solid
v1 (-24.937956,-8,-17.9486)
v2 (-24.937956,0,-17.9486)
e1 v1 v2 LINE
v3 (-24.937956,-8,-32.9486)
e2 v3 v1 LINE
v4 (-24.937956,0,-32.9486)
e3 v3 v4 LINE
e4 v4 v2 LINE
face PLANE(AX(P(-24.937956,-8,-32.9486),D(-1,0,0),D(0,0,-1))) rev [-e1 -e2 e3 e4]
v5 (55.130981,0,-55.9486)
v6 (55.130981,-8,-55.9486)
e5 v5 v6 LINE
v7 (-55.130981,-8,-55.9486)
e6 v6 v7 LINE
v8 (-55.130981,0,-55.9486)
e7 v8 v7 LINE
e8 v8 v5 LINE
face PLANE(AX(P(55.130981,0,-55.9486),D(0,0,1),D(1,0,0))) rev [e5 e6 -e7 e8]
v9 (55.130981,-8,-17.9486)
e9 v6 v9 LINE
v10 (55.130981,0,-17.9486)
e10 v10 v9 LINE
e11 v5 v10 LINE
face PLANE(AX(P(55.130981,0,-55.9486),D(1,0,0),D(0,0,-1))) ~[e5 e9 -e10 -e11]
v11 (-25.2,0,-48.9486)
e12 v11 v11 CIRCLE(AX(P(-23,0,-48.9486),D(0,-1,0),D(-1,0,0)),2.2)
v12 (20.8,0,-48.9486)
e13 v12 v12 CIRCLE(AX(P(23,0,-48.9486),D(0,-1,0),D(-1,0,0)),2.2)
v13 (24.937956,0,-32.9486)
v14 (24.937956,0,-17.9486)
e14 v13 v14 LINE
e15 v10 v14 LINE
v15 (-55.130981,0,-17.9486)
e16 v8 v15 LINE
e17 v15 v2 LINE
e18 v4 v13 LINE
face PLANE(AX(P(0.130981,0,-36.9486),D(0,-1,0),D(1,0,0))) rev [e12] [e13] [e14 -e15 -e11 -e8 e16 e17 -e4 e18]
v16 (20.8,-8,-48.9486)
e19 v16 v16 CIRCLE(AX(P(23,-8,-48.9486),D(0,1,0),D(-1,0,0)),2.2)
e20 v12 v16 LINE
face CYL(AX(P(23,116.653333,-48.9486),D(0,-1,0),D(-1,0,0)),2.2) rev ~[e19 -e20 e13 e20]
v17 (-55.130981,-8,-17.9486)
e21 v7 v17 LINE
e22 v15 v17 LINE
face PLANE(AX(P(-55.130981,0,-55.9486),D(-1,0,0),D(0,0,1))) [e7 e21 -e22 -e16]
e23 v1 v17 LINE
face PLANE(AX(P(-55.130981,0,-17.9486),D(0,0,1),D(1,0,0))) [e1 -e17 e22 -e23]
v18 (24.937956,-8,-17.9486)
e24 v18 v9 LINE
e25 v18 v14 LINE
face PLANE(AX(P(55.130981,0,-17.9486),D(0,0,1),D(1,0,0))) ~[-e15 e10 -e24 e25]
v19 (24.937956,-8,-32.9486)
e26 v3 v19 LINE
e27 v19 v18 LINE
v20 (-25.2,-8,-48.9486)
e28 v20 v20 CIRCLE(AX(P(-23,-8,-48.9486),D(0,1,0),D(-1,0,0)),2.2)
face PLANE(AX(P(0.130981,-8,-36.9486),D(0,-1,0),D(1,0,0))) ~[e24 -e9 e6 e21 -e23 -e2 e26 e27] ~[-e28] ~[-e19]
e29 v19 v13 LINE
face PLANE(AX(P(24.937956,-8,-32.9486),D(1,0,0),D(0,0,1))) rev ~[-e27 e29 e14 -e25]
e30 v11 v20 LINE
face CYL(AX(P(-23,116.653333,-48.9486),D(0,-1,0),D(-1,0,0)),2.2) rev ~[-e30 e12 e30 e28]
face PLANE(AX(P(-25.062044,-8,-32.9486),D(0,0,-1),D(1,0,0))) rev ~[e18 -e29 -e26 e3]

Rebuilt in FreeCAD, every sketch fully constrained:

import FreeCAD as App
import Part
import Sketcher
from FreeCAD import Vector
Q = App.Units.Quantity


def add_polygon(sketch, points):
    """Adds a closed chain of lines whose ends are joined by coincident constraints."""
    first, n = sketch.GeometryCount, len(points)
    for a, b in zip(points, points[1:] + points[:1]):
        sketch.addGeometry(Part.LineSegment(App.Vector(*a, 0), App.Vector(*b, 0)), False)
    for i in range(n):
        sketch.addConstraint(Sketcher.Constraint("Coincident", first + i, 2, first + (i + 1) % n, 1))

doc = App.newDocument("Part")
body = doc.addObject("PartDesign::Body", "Body")

sketch1 = body.newObject("Sketcher::SketchObject", "Sketch")
sketch1.AttachmentSupport = (doc.getObject("XZ_Plane"), [""])
sketch1.MapMode = "FlatFace"
add_polygon(sketch1, [(-55, -18), (-55, -56), (55, -56), (55, -18)])
sketch1.addConstraint([
    Sketcher.Constraint("Vertical", 0),
    Sketcher.Constraint("Horizontal", 1),
    Sketcher.Constraint("Vertical", 2),
    Sketcher.Constraint("Horizontal", 3),
    Sketcher.Constraint("DistanceX", 1, 1, 1, 2, Q("110 mm")),
    Sketcher.Constraint("DistanceY", 0, 2, 0, 1, Q("38 mm")),
    Sketcher.Constraint("DistanceY", 0, 2, -1, 1, Q("55.9486 mm")),
    Sketcher.Constraint("DistanceX", 0, 2, -1, 1, Q("55.130981 mm")),
])
pad1 = body.newObject("PartDesign::Pad", "Pad")
pad1.Profile = sketch1
pad1.Length = 8

sketch2 = body.newObject("Sketcher::SketchObject", "Sketch001")
sketch2.AttachmentSupport = (doc.getObject("XZ_Plane"), [""])
sketch2.MapMode = "FlatFace"
sketch2.AttachmentOffset = App.Placement(Vector(0, 0, 8), App.Rotation())
add_polygon(sketch2, [(-25, -18), (-25, -33), (25, -33), (25, -18)])
sketch2.addConstraint([
    Sketcher.Constraint("Vertical", 0),
    Sketcher.Constraint("Horizontal", 1),
    Sketcher.Constraint("Vertical", 2),
    Sketcher.Constraint("Horizontal", 3),
    Sketcher.Constraint("DistanceX", 1, 1, 1, 2, Q("50 mm")),
    Sketcher.Constraint("DistanceY", 0, 2, 0, 1, Q("15 mm")),
    Sketcher.Constraint("DistanceY", 0, 2, -1, 1, Q("32.9486 mm")),
    Sketcher.Constraint("DistanceX", 0, 2, -1, 1, Q("25.062044 mm")),
])
pocket1 = body.newObject("PartDesign::Pocket", "Pocket")
pocket1.Profile = sketch2
pocket1.Length = 25

sketch3 = body.newObject("Sketcher::SketchObject", "Sketch002")
sketch3.AttachmentSupport = (doc.getObject("XZ_Plane"), [""])
sketch3.MapMode = "FlatFace"
sketch3.addGeometry([
    Part.Circle(Vector(-23, -48.9, 0), Vector(0, 0, 1), 2.2),
    Part.Circle(Vector(23, -48.9, 0), Vector(0, 0, 1), 2.2),
], False)
sketch3.addConstraint([
    Sketcher.Constraint("Equal", 0, 1),
    Sketcher.Constraint("Symmetric", 0, 3, 1, 3, -2),
    Sketcher.Constraint("Diameter", 0, Q("4.4 mm")),
    Sketcher.Constraint("DistanceX", 0, 3, -1, 1, Q("23 mm")),
    Sketcher.Constraint("DistanceY", 0, 3, -1, 1, Q("48.9486 mm")),
])
doc.recompute()
hole = body.newObject("PartDesign::Hole", "Hole")
hole.Profile = sketch3
hole.ThreadType = "None"
hole.Diameter = 4.4
hole.DepthType = "ThroughAll"
hole.Reversed = True
body2 = doc.addObject("PartDesign::Body", "Body001")
doc.recompute()

body2.BaseFeature = body
doc.recompute()

mirroring = doc.addObject("Part::Mirroring", "Mirroring")
mirroring.Source = body
mirroring.Base = Vector(0, 0, 0)
mirroring.Normal = Vector(1, 0, 0)
body3 = doc.addObject("PartDesign::Body", "Body002")
body3.BaseFeature = mirroring
boolean = body2.newObject("PartDesign::Boolean", "Boolean")
boolean.Type = "Fuse"
boolean.addObjects([body3])
doc.recompute()
mirroring.Visibility = False

doc.recompute()
